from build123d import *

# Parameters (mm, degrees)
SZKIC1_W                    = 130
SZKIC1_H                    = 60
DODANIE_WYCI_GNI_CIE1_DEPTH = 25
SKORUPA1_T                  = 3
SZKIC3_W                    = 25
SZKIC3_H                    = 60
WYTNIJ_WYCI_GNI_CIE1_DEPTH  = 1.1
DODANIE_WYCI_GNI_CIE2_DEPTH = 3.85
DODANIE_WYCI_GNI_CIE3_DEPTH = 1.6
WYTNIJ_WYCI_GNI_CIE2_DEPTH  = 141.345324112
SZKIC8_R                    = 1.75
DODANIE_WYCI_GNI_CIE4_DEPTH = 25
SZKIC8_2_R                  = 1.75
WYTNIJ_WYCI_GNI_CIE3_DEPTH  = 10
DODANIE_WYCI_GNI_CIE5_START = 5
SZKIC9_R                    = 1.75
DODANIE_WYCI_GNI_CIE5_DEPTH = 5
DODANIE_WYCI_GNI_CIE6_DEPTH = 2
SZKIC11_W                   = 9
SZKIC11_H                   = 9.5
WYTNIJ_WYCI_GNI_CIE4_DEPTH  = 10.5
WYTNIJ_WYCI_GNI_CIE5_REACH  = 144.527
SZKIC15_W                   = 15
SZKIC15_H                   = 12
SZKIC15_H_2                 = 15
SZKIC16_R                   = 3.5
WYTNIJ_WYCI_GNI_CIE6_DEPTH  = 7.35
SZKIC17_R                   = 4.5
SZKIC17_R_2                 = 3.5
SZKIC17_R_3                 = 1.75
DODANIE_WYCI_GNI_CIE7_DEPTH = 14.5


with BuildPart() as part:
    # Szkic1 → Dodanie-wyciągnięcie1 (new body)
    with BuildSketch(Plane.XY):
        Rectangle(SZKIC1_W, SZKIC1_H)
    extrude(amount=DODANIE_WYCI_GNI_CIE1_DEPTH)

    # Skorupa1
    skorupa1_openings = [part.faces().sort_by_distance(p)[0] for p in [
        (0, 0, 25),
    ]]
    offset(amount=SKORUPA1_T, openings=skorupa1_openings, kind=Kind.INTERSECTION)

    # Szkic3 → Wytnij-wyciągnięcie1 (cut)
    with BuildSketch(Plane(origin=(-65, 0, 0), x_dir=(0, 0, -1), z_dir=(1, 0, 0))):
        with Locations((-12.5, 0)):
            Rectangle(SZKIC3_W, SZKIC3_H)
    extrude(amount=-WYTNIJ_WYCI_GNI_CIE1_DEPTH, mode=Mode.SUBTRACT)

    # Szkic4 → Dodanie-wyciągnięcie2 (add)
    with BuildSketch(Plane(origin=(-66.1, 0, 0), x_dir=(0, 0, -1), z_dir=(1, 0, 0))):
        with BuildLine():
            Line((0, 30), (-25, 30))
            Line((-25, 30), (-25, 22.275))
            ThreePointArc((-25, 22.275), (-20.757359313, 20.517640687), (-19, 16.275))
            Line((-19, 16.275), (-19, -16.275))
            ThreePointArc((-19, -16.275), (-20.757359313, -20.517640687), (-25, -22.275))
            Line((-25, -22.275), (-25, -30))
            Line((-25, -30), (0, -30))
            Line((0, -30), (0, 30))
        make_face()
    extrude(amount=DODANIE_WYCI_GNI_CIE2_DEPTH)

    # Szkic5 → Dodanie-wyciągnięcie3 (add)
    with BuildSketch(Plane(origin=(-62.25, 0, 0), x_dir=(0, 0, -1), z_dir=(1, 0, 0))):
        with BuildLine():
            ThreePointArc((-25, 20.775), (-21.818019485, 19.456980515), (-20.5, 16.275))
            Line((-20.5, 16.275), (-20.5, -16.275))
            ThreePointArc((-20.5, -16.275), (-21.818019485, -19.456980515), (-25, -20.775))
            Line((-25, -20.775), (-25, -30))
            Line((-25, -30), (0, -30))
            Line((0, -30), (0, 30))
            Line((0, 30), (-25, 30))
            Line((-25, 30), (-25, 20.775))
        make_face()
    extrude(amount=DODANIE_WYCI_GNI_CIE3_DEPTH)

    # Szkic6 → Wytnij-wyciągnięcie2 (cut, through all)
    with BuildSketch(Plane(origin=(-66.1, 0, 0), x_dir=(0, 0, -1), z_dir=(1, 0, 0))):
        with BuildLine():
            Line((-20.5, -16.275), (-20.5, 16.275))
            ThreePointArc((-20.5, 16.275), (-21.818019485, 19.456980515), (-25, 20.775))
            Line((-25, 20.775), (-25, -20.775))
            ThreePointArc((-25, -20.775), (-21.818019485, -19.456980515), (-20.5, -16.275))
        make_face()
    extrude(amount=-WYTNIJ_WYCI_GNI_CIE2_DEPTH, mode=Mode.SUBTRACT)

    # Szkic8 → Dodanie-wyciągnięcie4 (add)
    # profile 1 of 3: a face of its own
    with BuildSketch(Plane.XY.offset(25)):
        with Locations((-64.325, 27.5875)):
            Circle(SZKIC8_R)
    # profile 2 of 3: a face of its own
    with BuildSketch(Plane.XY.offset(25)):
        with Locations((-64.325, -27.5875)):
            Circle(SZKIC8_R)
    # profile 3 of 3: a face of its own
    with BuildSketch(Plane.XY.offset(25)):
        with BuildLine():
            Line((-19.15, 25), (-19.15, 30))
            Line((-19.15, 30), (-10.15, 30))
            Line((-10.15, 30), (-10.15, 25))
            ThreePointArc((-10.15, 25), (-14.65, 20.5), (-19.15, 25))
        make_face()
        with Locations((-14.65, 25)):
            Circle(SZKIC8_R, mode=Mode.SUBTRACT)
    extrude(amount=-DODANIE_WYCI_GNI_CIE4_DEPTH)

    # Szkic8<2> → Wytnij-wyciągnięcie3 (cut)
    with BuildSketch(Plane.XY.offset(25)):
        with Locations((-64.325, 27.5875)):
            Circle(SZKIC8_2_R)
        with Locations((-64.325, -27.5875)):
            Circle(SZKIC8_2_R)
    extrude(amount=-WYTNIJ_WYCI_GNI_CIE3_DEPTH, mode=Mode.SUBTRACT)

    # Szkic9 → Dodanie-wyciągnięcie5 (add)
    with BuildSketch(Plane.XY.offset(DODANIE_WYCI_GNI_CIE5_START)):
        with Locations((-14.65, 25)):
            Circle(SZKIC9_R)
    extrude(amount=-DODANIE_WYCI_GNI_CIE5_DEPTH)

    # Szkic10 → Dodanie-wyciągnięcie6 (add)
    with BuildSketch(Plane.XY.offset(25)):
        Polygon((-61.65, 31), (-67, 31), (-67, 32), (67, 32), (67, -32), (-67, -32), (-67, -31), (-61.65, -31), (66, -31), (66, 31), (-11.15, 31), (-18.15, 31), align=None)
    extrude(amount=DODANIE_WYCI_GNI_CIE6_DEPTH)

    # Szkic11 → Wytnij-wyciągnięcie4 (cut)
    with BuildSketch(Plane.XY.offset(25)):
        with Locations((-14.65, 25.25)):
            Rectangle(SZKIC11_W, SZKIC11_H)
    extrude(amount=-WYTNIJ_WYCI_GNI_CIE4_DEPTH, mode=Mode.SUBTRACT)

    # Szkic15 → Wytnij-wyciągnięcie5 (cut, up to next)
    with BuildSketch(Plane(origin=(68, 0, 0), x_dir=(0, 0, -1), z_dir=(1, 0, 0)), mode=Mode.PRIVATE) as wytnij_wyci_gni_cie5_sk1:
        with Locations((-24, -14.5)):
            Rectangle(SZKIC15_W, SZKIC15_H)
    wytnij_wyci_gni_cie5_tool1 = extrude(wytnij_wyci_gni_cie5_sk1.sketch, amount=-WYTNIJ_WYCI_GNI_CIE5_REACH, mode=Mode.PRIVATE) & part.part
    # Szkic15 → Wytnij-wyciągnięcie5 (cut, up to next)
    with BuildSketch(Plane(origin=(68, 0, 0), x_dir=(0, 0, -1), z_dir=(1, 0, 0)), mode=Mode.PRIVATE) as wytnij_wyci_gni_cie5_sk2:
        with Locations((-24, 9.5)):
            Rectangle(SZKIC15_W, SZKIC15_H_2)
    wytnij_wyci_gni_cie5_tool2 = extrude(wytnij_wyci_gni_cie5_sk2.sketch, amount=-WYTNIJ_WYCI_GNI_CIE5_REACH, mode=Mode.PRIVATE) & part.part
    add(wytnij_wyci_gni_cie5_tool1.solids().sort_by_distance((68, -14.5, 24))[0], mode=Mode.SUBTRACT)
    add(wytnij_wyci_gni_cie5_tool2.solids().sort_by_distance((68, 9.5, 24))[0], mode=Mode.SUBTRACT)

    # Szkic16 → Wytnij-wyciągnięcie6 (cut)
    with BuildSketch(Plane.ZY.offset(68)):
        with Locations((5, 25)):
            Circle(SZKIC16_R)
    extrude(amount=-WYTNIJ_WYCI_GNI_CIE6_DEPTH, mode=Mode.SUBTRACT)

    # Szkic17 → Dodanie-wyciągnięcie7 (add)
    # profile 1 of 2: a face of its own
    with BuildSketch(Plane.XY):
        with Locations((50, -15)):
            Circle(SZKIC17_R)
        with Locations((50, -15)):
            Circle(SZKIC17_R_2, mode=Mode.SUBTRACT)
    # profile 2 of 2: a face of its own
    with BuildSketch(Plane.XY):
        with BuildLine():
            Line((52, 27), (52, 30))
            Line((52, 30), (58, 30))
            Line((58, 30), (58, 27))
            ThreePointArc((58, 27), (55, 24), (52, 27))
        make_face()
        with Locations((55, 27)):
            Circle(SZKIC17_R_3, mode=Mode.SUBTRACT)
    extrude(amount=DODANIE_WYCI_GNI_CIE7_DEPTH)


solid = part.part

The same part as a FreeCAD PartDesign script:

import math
import FreeCAD as App
import Part
import Sketcher


def faces_at(feature, points):
    """Names of the faces that lie closest to the given points."""
    faces = feature.Shape.Faces
    near = lambda p: min(range(len(faces)), key=lambda i: faces[i].distToShape(Part.Vertex(*p))[0])
    return sorted({f"Face{near(p) + 1}" for p in points})

doc = App.newDocument("Part")
body = doc.addObject("PartDesign::Body", "Body")

# Sketch on XY plane
sketch1 = body.newObject("Sketcher::SketchObject", "Sketch")
sketch1.AttachmentSupport = (doc.getObject("XY_Plane"), [""])
sketch1.MapMode = "FlatFace"
sketch1.addGeometry(Part.LineSegment(App.Vector(-65, 30, 0), App.Vector(-65, -30, 0)), False)
sketch1.addGeometry(Part.LineSegment(App.Vector(-65, -30, 0), App.Vector(65, -30, 0)), False)
sketch1.addGeometry(Part.LineSegment(App.Vector(65, -30, 0), App.Vector(65, 30, 0)), False)
sketch1.addGeometry(Part.LineSegment(App.Vector(65, 30, 0), App.Vector(-65, 30, 0)), False)
sketch1.addConstraint(Sketcher.Constraint("Coincident", 0, 2, 1, 1))
sketch1.addConstraint(Sketcher.Constraint("Coincident", 1, 2, 2, 1))
sketch1.addConstraint(Sketcher.Constraint("Coincident", 2, 2, 3, 1))
sketch1.addConstraint(Sketcher.Constraint("Coincident", 3, 2, 0, 1))
sketch1.addConstraint(Sketcher.Constraint("Vertical", 0))
sketch1.addConstraint(Sketcher.Constraint("Horizontal", 1))
sketch1.addConstraint(Sketcher.Constraint("Vertical", 2))
sketch1.addConstraint(Sketcher.Constraint("Horizontal", 3))
sketch1.addConstraint(Sketcher.Constraint("Symmetric", 0, 2, 2, 2, -1, 1))
sketch1.addConstraint(Sketcher.Constraint("DistanceX", 1, 1, 1, 2, 130.0))
sketch1.addConstraint(Sketcher.Constraint("DistanceY", 0, 2, 0, 1, 60.0))
pad1 = body.newObject("PartDesign::Pad", "Pad")
pad1.Profile = sketch1
pad1.Length = 25
doc.recompute()

thickness = body.newObject("PartDesign::Thickness", "Thickness")
thickness.Base = (pad1, faces_at(pad1, [(0, 0, 25)]))
thickness.Value = 3
thickness.Reversed = False
thickness.Join = "Intersection"

# Sketch on YZ plane
sketch2 = body.newObject("Sketcher::SketchObject", "Sketch001")
sketch2.AttachmentSupport = (doc.getObject("YZ_Plane"), [""])
sketch2.MapMode = "FlatFace"
sketch2.AttachmentOffset = App.Placement(App.Vector(0, 0, -65), App.Rotation())
sketch2.addGeometry(Part.LineSegment(App.Vector(30, 25, 0), App.Vector(-30, 25, 0)), False)
sketch2.addGeometry(Part.LineSegment(App.Vector(-30, 25, 0), App.Vector(-30, 0, 0)), False)
sketch2.addGeometry(Part.LineSegment(App.Vector(-30, 0, 0), App.Vector(30, 0, 0)), False)
sketch2.addGeometry(Part.LineSegment(App.Vector(30, 0, 0), App.Vector(30, 25, 0)), False)
sketch2.addConstraint(Sketcher.Constraint("Coincident", 0, 2, 1, 1))
sketch2.addConstraint(Sketcher.Constraint("Coincident", 1, 2, 2, 1))
sketch2.addConstraint(Sketcher.Constraint("Coincident", 2, 2, 3, 1))
sketch2.addConstraint(Sketcher.Constraint("Coincident", 3, 2, 0, 1))
sketch2.addConstraint(Sketcher.Constraint("Horizontal", 0))
sketch2.addConstraint(Sketcher.Constraint("Vertical", 1))
sketch2.addConstraint(Sketcher.Constraint("Horizontal", 2))
sketch2.addConstraint(Sketcher.Constraint("Vertical", 3))
sketch2.addConstraint(Sketcher.Constraint("Symmetric", 1, 2, 2, 2, -1, 1))
sketch2.addConstraint(Sketcher.Constraint("DistanceX", 0, 2, 0, 1, 60.0))
sketch2.addConstraint(Sketcher.Constraint("DistanceY", 1, 2, 1, 1, 25.0))
pocket1 = body.newObject("PartDesign::Pocket", "Pocket")
pocket1.Profile = sketch2
pocket1.Length = 1.1

# Sketch on YZ plane
sketch3 = body.newObject("Sketcher::SketchObject", "Sketch002")
sketch3.AttachmentSupport = (doc.getObject("YZ_Plane"), [""])
sketch3.MapMode = "FlatFace"
sketch3.AttachmentOffset = App.Placement(App.Vector(0, 0, -66.1), App.Rotation())
sketch3.addGeometry(Part.LineSegment(App.Vector(30, 0, 0), App.Vector(30, 25, 0)), False)
sketch3.addGeometry(Part.LineSegment(App.Vector(30, 25, 0), App.Vector(22, 25, 0)), False)
sketch3.addGeometry(Part.ArcOfCircle(Part.Circle(App.Vector(16, 25, 0), App.Vector(0, 0, 1), 6), math.radians(-90), math.radians(0)), False)
sketch3.addGeometry(Part.LineSegment(App.Vector(16, 19, 0), App.Vector(-16, 19, 0)), False)
sketch3.addGeometry(Part.ArcOfCircle(Part.Circle(App.Vector(-16, 25, 0), App.Vector(0, 0, 1), 6), math.radians(180), math.radians(270)), False)
sketch3.addGeometry(Part.LineSegment(App.Vector(-22, 25, 0), App.Vector(-30, 25, 0)), False)
sketch3.addGeometry(Part.LineSegment(App.Vector(-30, 25, 0), App.Vector(-30, 0, 0)), False)
sketch3.addGeometry(Part.LineSegment(App.Vector(-30, 0, 0), App.Vector(30, 0, 0)), False)
sketch3.addConstraint(Sketcher.Constraint("Coincident", 0, 2, 1, 1))
sketch3.addConstraint(Sketcher.Constraint("Coincident", 1, 2, 2, 2))
sketch3.addConstraint(Sketcher.Constraint("Tangent", 2, 1, 3, 1))
sketch3.addConstraint(Sketcher.Constraint("Tangent", 3, 2, 4, 2))
sketch3.addConstraint(Sketcher.Constraint("Coincident", 4, 1, 5, 1))
sketch3.addConstraint(Sketcher.Constraint("Coincident", 5, 2, 6, 1))
sketch3.addConstraint(Sketcher.Constraint("Coincident", 6, 2, 7, 1))
sketch3.addConstraint(Sketcher.Constraint("Coincident", 7, 2, 0, 1))
sketch3.addConstraint(Sketcher.Constraint("Vertical", 0))
sketch3.addConstraint(Sketcher.Constraint("Horizontal", 1))
sketch3.addConstraint(Sketcher.Constraint("Horizontal", 3))
sketch3.addConstraint(Sketcher.Constraint("Horizontal", 5))
sketch3.addConstraint(Sketcher.Constraint("Vertical", 6))
sketch3.addConstraint(Sketcher.Constraint("Horizontal", 7))
sketch3.addConstraint(Sketcher.Constraint("Equal", 2, 4))
sketch3.addConstraint(Sketcher.Constraint("Symmetric", 6, 2, 7, 2, -1, 1))
sketch3.addConstraint(Sketcher.Constraint("Symmetric", 1, 2, 4, 1, -2))
sketch3.addConstraint(Sketcher.Constraint("Horizontal", 4, 3, 0, 2))
sketch3.addConstraint(Sketcher.Constraint("Radius", 2, 6.0))
sketch3.addConstraint(Sketcher.Constraint("DistanceX", 7, 1, 7, 2, 60.0))
sketch3.addConstraint(Sketcher.Constraint("DistanceY", 0, 1, 0, 2, 25.0))
sketch3.addConstraint(Sketcher.Constraint("DistanceX", 3, 2, 3, 1, 32.55))
pad2 = body.newObject("PartDesign::Pad", "Pad001")
pad2.Profile = sketch3
pad2.Length = 3.85

# Sketch on YZ plane
sketch4 = body.newObject("Sketcher::SketchObject", "Sketch003")
sketch4.AttachmentSupport = (doc.getObject("YZ_Plane"), [""])
sketch4.MapMode = "FlatFace"
sketch4.AttachmentOffset = App.Placement(App.Vector(0, 0, -62.25), App.Rotation())
sketch4.addGeometry(Part.ArcOfCircle(Part.Circle(App.Vector(16.3, 25, 0), App.Vector(0, 0, 1), 4.5), math.radians(-90), math.radians(0)), False)
sketch4.addGeometry(Part.LineSegment(App.Vector(16.3, 20.5, 0), App.Vector(-16.3, 20.5, 0)), False)
sketch4.addGeometry(Part.ArcOfCircle(Part.Circle(App.Vector(-16.3, 25, 0), App.Vector(0, 0, 1), 4.5), math.radians(-180), math.radians(-90)), False)
sketch4.addGeometry(Part.LineSegment(App.Vector(-20.8, 25, 0), App.Vector(-30, 25, 0)), False)
sketch4.addGeometry(Part.LineSegment(App.Vector(-30, 25, 0), App.Vector(-30, 0, 0)), False)
sketch4.addGeometry(Part.LineSegment(App.Vector(-30, 0, 0), App.Vector(30, 0, 0)), False)
sketch4.addGeometry(Part.LineSegment(App.Vector(30, 0, 0), App.Vector(30, 25, 0)), False)
sketch4.addGeometry(Part.LineSegment(App.Vector(30, 25, 0), App.Vector(20.8, 25, 0)), False)
sketch4.addConstraint(Sketcher.Constraint("Tangent", 0, 1, 1, 1))
sketch4.addConstraint(Sketcher.Constraint("Tangent", 1, 2, 2, 2))
sketch4.addConstraint(Sketcher.Constraint("Coincident", 2, 1, 3, 1))
sketch4.addConstraint(Sketcher.Constraint("Coincident", 3, 2, 4, 1))
sketch4.addConstraint(Sketcher.Constraint("Coincident", 4, 2, 5, 1))
sketch4.addConstraint(Sketcher.Constraint("Coincident", 5, 2, 6, 1))
sketch4.addConstraint(Sketcher.Constraint("Coincident", 6, 2, 7, 1))
sketch4.addConstraint(Sketcher.Constraint("Coincident", 7, 2, 0, 2))
sketch4.addConstraint(Sketcher.Constraint("Horizontal", 1))
sketch4.addConstraint(Sketcher.Constraint("Horizontal", 3))
sketch4.addConstraint(Sketcher.Constraint("Vertical", 4))
sketch4.addConstraint(Sketcher.Constraint("Horizontal", 5))
sketch4.addConstraint(Sketcher.Constraint("Vertical", 6))
sketch4.addConstraint(Sketcher.Constraint("Horizontal", 7))
sketch4.addConstraint(Sketcher.Constraint("Equal", 0, 2))
sketch4.addConstraint(Sketcher.Constraint("Symmetric", 4, 2, 5, 2, -1, 1))
sketch4.addConstraint(Sketcher.Constraint("Symmetric", 2, 1, 7, 2, -2))
sketch4.addConstraint(Sketcher.Constraint("Horizontal", 0, 3, 2, 1))
sketch4.addConstraint(Sketcher.Constraint("Radius", 0, 4.5))
sketch4.addConstraint(Sketcher.Constraint("DistanceX", 5, 1, 5, 2, 60.0))
sketch4.addConstraint(Sketcher.Constraint("DistanceY", 4, 2, 4, 1, 25.0))
sketch4.addConstraint(Sketcher.Constraint("DistanceX", 1, 2, 1, 1, 32.55))
pad3 = body.newObject("PartDesign::Pad", "Pad002")
pad3.Profile = sketch4
pad3.Length = 1.6

# Sketch on YZ plane
sketch5 = body.newObject("Sketcher::SketchObject", "Sketch004")
sketch5.AttachmentSupport = (doc.getObject("YZ_Plane"), [""])
sketch5.MapMode = "FlatFace"
sketch5.AttachmentOffset = App.Placement(App.Vector(0, 0, -66.1), App.Rotation())
sketch5.addGeometry(Part.LineSegment(App.Vector(-16.3, 20.5, 0), App.Vector(16.3, 20.5, 0)), False)
sketch5.addGeometry(Part.ArcOfCircle(Part.Circle(App.Vector(16.3, 25, 0), App.Vector(0, 0, 1), 4.5), math.radians(-90), math.radians(0)), False)
sketch5.addGeometry(Part.LineSegment(App.Vector(20.8, 25, 0), App.Vector(-20.8, 25, 0)), False)
sketch5.addGeometry(Part.ArcOfCircle(Part.Circle(App.Vector(-16.3, 25, 0), App.Vector(0, 0, 1), 4.5), math.radians(-180), math.radians(-90)), False)
sketch5.addConstraint(Sketcher.Constraint("Tangent", 0, 2, 1, 1))
sketch5.addConstraint(Sketcher.Constraint("Coincident", 1, 2, 2, 1))
sketch5.addConstraint(Sketcher.Constraint("Coincident", 2, 2, 3, 1))
sketch5.addConstraint(Sketcher.Constraint("Tangent", 3, 2, 0, 1))
sketch5.addConstraint(Sketcher.Constraint("Horizontal", 0))
sketch5.addConstraint(Sketcher.Constraint("Horizontal", 2))
sketch5.addConstraint(Sketcher.Constraint("Equal", 1, 3))
sketch5.addConstraint(Sketcher.Constraint("Horizontal", 3, 3, 1, 2))
sketch5.addConstraint(Sketcher.Constraint("Radius", 1, 4.5))
sketch5.addConstraint(Sketcher.Constraint("DistanceY", -1, 1, 1, 3, 25.0))
sketch5.addConstraint(Sketcher.Constraint("DistanceX", 0, 1, 0, 2, 32.55))
sketch5.addConstraint(Sketcher.Constraint("DistanceX", -1, 1, 1, 3, 16.275))
pocket2 = body.newObject("PartDesign::Pocket", "Pocket001")
pocket2.Profile = sketch5
pocket2.Type = "ThroughAll"

# Sketch on XY plane
sketch6 = body.newObject("Sketcher::SketchObject", "Sketch005")
sketch6.AttachmentSupport = (doc.getObject("XY_Plane"), [""])
sketch6.MapMode = "FlatFace"
sketch6.AttachmentOffset = App.Placement(App.Vector(0, 0, 25), App.Rotation())
sketch6.addGeometry(Part.Circle(App.Vector(-64.3, 27.6, 0), App.Vector(0, 0, 1), 1.8), False)
sketch6.addGeometry(Part.Circle(App.Vector(-64.3, -27.6, 0), App.Vector(0, 0, 1), 1.8), False)
sketch6.addGeometry(Part.LineSegment(App.Vector(-19.1, 30, 0), App.Vector(-19.1, 25, 0)), False)
sketch6.addGeometry(Part.ArcOfCircle(Part.Circle(App.Vector(-14.7, 25, 0), App.Vector(0, 0, 1), 4.5), math.radians(180), math.radians(360)), False)
sketch6.addGeometry(Part.LineSegment(App.Vector(-10.2, 25, 0), App.Vector(-10.2, 30, 0)), False)
sketch6.addGeometry(Part.LineSegment(App.Vector(-10.2, 30, 0), App.Vector(-19.1, 30, 0)), False)
sketch6.addGeometry(Part.Circle(App.Vector(-14.7, 25, 0), App.Vector(0, 0, 1), 1.8), False)
sketch6.addConstraint(Sketcher.Constraint("Tangent", 2, 2, 3, 1))
sketch6.addConstraint(Sketcher.Constraint("Tangent", 3, 2, 4, 1))
sketch6.addConstraint(Sketcher.Constraint("Coincident", 4, 2, 5, 1))
sketch6.addConstraint(Sketcher.Constraint("Coincident", 5, 2, 2, 1))
sketch6.addConstraint(Sketcher.Constraint("Vertical", 2))
sketch6.addConstraint(Sketcher.Constraint("Vertical", 4))
sketch6.addConstraint(Sketcher.Constraint("Horizontal", 5))
sketch6.addConstraint(Sketcher.Constraint("Coincident", 6, 3, 3, 3))
sketch6.addConstraint(Sketcher.Constraint("Equal", 0, 1))
sketch6.addConstraint(Sketcher.Constraint("Equal", 1, 6))
sketch6.addConstraint(Sketcher.Constraint("Symmetric", 0, 3, 1, 3, -1))
sketch6.addConstraint(Sketcher.Constraint("Diameter", 0, 3.5))
sketch6.addConstraint(Sketcher.Constraint("Radius", 3, 4.5))
sketch6.addConstraint(Sketcher.Constraint("DistanceY", 2, 2, 2, 1, 5.0))
sketch6.addConstraint(Sketcher.Constraint("DistanceY", -1, 1, 3, 3, 25.0))
sketch6.addConstraint(Sketcher.Constraint("DistanceX", 3, 3, -1, 1, 14.65))
sketch6.addConstraint(Sketcher.Constraint("DistanceX", 0, 3, -1, 1, 64.325))
sketch6.addConstraint(Sketcher.Constraint("DistanceY", 1, 3, 0, 3, 55.175))
pad4 = body.newObject("PartDesign::Pad", "Pad003")
pad4.Profile = sketch6
pad4.Length = 25
pad4.Reversed = True

# Sketch on XY plane
sketch7 = body.newObject("Sketcher::SketchObject", "Sketch006")
sketch7.AttachmentSupport = (doc.getObject("XY_Plane"), [""])
sketch7.MapMode = "FlatFace"
sketch7.AttachmentOffset = App.Placement(App.Vector(0, 0, 25), App.Rotation())
sketch7.addGeometry(Part.Circle(App.Vector(-64.3, 27.6, 0), App.Vector(0, 0, 1), 1.8), False)
sketch7.addGeometry(Part.Circle(App.Vector(-64.3, -27.6, 0), App.Vector(0, 0, 1), 1.8), False)
sketch7.addConstraint(Sketcher.Constraint("Equal", 0, 1))
sketch7.addConstraint(Sketcher.Constraint("Symmetric", 0, 3, 1, 3, -1))
sketch7.addConstraint(Sketcher.Constraint("Diameter", 0, 3.5))
sketch7.addConstraint(Sketcher.Constraint("DistanceX", 0, 3, -1, 1, 64.325))
sketch7.addConstraint(Sketcher.Constraint("DistanceY", 1, 3, 0, 3, 55.175))
pocket3 = body.newObject("PartDesign::Pocket", "Pocket002")
pocket3.Profile = sketch7
pocket3.Length = 10

# Sketch on XY plane
sketch8 = body.newObject("Sketcher::SketchObject", "Sketch007")
sketch8.AttachmentSupport = (doc.getObject("XY_Plane"), [""])
sketch8.MapMode = "FlatFace"
sketch8.AttachmentOffset = App.Placement(App.Vector(0, 0, 5), App.Rotation())
sketch8.addGeometry(Part.Circle(App.Vector(-14.7, 25, 0), App.Vector(0, 0, 1), 1.8), False)
sketch8.addConstraint(Sketcher.Constraint("Diameter", 0, 3.5))
sketch8.addConstraint(Sketcher.Constraint("DistanceY", -1, 1, 0, 3, 25.0))
sketch8.addConstraint(Sketcher.Constraint("DistanceX", 0, 3, -1, 1, 14.65))
pad5 = body.newObject("PartDesign::Pad", "Pad004")
pad5.Profile = sketch8
pad5.Length = 5
pad5.Reversed = True

# Sketch on XY plane
sketch9 = body.newObject("Sketcher::SketchObject", "Sketch008")
sketch9.AttachmentSupport = (doc.getObject("XY_Plane"), [""])
sketch9.MapMode = "FlatFace"
sketch9.AttachmentOffset = App.Placement(App.Vector(0, 0, 25), App.Rotation())
sketch9.addGeometry(Part.LineSegment(App.Vector(-67, 31, 0), App.Vector(66, 31, 0)), False)
sketch9.addGeometry(Part.LineSegment(App.Vector(66, 31, 0), App.Vector(66, -31, 0)), False)
sketch9.addGeometry(Part.LineSegment(App.Vector(66, -31, 0), App.Vector(-67, -31, 0)), False)
sketch9.addGeometry(Part.LineSegment(App.Vector(-67, -31, 0), App.Vector(-67, -32, 0)), False)
sketch9.addGeometry(Part.LineSegment(App.Vector(-67, -32, 0), App.Vector(67, -32, 0)), False)
sketch9.addGeometry(Part.LineSegment(App.Vector(67, -32, 0), App.Vector(67, 32, 0)), False)
sketch9.addGeometry(Part.LineSegment(App.Vector(67, 32, 0), App.Vector(-67, 32, 0)), False)
sketch9.addGeometry(Part.LineSegment(App.Vector(-67, 32, 0), App.Vector(-67, 31, 0)), False)
sketch9.addConstraint(Sketcher.Constraint("Coincident", 0, 2, 1, 1))
sketch9.addConstraint(Sketcher.Constraint("Coincident", 1, 2, 2, 1))
sketch9.addConstraint(Sketcher.Constraint("Coincident", 2, 2, 3, 1))
sketch9.addConstraint(Sketcher.Constraint("Coincident", 3, 2, 4, 1))
sketch9.addConstraint(Sketcher.Constraint("Coincident", 4, 2, 5, 1))
sketch9.addConstraint(Sketcher.Constraint("Coincident", 5, 2, 6, 1))
sketch9.addConstraint(Sketcher.Constraint("Coincident", 6, 2, 7, 1))
sketch9.addConstraint(Sketcher.Constraint("Coincident", 7, 2, 0, 1))
sketch9.addConstraint(Sketcher.Constraint("Horizontal", 0))
sketch9.addConstraint(Sketcher.Constraint("Vertical", 1))
sketch9.addConstraint(Sketcher.Constraint("Horizontal", 2))
sketch9.addConstraint(Sketcher.Constraint("Vertical", 3))
sketch9.addConstraint(Sketcher.Constraint("Horizontal", 4))
sketch9.addConstraint(Sketcher.Constraint("Vertical", 5))
sketch9.addConstraint(Sketcher.Constraint("Horizontal", 6))
sketch9.addConstraint(Sketcher.Constraint("Vertical", 7))
sketch9.addConstraint(Sketcher.Constraint("Symmetric", 3, 2, 5, 2, -1, 1))
sketch9.addConstraint(Sketcher.Constraint("Symmetric", 2, 2, 7, 2, -1))
sketch9.addConstraint(Sketcher.Constraint("DistanceX", 0, 1, 0, 2, 133.0))
sketch9.addConstraint(Sketcher.Constraint("DistanceX", 4, 1, 4, 2, 134.0))
sketch9.addConstraint(Sketcher.Constraint("DistanceY", 1, 2, 1, 1, 62.0))
sketch9.addConstraint(Sketcher.Constraint("DistanceY", 3, 2, 3, 1, 1.0))
pad6 = body.newObject("PartDesign::Pad", "Pad005")
pad6.Profile = sketch9
pad6.Length = 2

# Sketch on XY plane
sketch10 = body.newObject("Sketcher::SketchObject", "Sketch009")
sketch10.AttachmentSupport = (doc.getObject("XY_Plane"), [""])
sketch10.MapMode = "FlatFace"
sketch10.AttachmentOffset = App.Placement(App.Vector(0, 0, 25), App.Rotation())
sketch10.addGeometry(Part.LineSegment(App.Vector(-19, 30, 0), App.Vector(-19, 20, 0)), False)
sketch10.addGeometry(Part.LineSegment(App.Vector(-19, 20, 0), App.Vector(-10, 20, 0)), False)
sketch10.addGeometry(Part.LineSegment(App.Vector(-10, 20, 0), App.Vector(-10, 30, 0)), False)
sketch10.addGeometry(Part.LineSegment(App.Vector(-10, 30, 0), App.Vector(-19, 30, 0)), False)
sketch10.addConstraint(Sketcher.Constraint("Coincident", 0, 2, 1, 1))
sketch10.addConstraint(Sketcher.Constraint("Coincident", 1, 2, 2, 1))
sketch10.addConstraint(Sketcher.Constraint("Coincident", 2, 2, 3, 1))
sketch10.addConstraint(Sketcher.Constraint("Coincident", 3, 2, 0, 1))
sketch10.addConstraint(Sketcher.Constraint("Vertical", 0))
sketch10.addConstraint(Sketcher.Constraint("Horizontal", 1))
sketch10.addConstraint(Sketcher.Constraint("Vertical", 2))
sketch10.addConstraint(Sketcher.Constraint("Horizontal", 3))
sketch10.addConstraint(Sketcher.Constraint("DistanceX", 1, 1, 1, 2, 9.0))
sketch10.addConstraint(Sketcher.Constraint("DistanceY", 0, 2, 0, 1, 9.5))
sketch10.addConstraint(Sketcher.Constraint("DistanceY", -1, 1, 2, 2, 30.0))
sketch10.addConstraint(Sketcher.Constraint("DistanceX", 0, 2, -1, 1, 19.15))
pocket4 = body.newObject("PartDesign::Pocket", "Pocket003")
pocket4.Profile = sketch10
pocket4.Length = 10.5

# Sketch on YZ plane
sketch11 = body.newObject("Sketcher::SketchObject", "Sketch010")
sketch11.AttachmentSupport = (doc.getObject("YZ_Plane"), [""])
sketch11.MapMode = "FlatFace"
sketch11.AttachmentOffset = App.Placement(App.Vector(0, 0, 68), App.Rotation())
sketch11.addGeometry(Part.LineSegment(App.Vector(-8, 32, 0), App.Vector(-20, 32, 0)), False)
sketch11.addGeometry(Part.LineSegment(App.Vector(-20, 32, 0), App.Vector(-20, 16, 0)), False)
sketch11.addGeometry(Part.LineSegment(App.Vector(-20, 16, 0), App.Vector(-8, 16, 0)), False)
sketch11.addGeometry(Part.LineSegment(App.Vector(-8, 16, 0), App.Vector(-8, 32, 0)), False)
sketch11.addConstraint(Sketcher.Constraint("Coincident", 0, 2, 1, 1))
sketch11.addConstraint(Sketcher.Constraint("Coincident", 1, 2, 2, 1))
sketch11.addConstraint(Sketcher.Constraint("Coincident", 2, 2, 3, 1))
sketch11.addConstraint(Sketcher.Constraint("Coincident", 3, 2, 0, 1))
sketch11.addConstraint(Sketcher.Constraint("Horizontal", 0))
sketch11.addConstraint(Sketcher.Constraint("Vertical", 1))
sketch11.addConstraint(Sketcher.Constraint("Horizontal", 2))
sketch11.addConstraint(Sketcher.Constraint("Vertical", 3))
sketch11.addConstraint(Sketcher.Constraint("DistanceX", 0, 2, 0, 1, 12.0))
sketch11.addConstraint(Sketcher.Constraint("DistanceY", 1, 2, 1, 1, 15.0))
sketch11.addConstraint(Sketcher.Constraint("DistanceX", 0, 2, -1, 1, 20.5))
sketch11.addConstraint(Sketcher.Constraint("DistanceY", -1, 1, 0, 2, 31.5))
pocket5 = body.newObject("PartDesign::Pocket", "Pocket004")
pocket5.Profile = sketch11
pocket5.Type = "UpToFirst"

# Sketch on YZ plane
sketch12 = body.newObject("Sketcher::SketchObject", "Sketch011")
sketch12.AttachmentSupport = (doc.getObject("YZ_Plane"), [""])
sketch12.MapMode = "FlatFace"
sketch12.AttachmentOffset = App.Placement(App.Vector(0, 0, 68), App.Rotation())
sketch12.addGeometry(Part.LineSegment(App.Vector(17, 32, 0), App.Vector(2, 32, 0)), False)
sketch12.addGeometry(Part.LineSegment(App.Vector(2, 32, 0), App.Vector(2, 16, 0)), False)
sketch12.addGeometry(Part.LineSegment(App.Vector(2, 16, 0), App.Vector(17, 16, 0)), False)
sketch12.addGeometry(Part.LineSegment(App.Vector(17, 16, 0), App.Vector(17, 32, 0)), False)
sketch12.addConstraint(Sketcher.Constraint("Coincident", 0, 2, 1, 1))
sketch12.addConstraint(Sketcher.Constraint("Coincident", 1, 2, 2, 1))
sketch12.addConstraint(Sketcher.Constraint("Coincident", 2, 2, 3, 1))
sketch12.addConstraint(Sketcher.Constraint("Coincident", 3, 2, 0, 1))
sketch12.addConstraint(Sketcher.Constraint("Horizontal", 0))
sketch12.addConstraint(Sketcher.Constraint("Vertical", 1))
sketch12.addConstraint(Sketcher.Constraint("Horizontal", 2))
sketch12.addConstraint(Sketcher.Constraint("Vertical", 3))
sketch12.addConstraint(Sketcher.Constraint("Equal", 2, 1))
sketch12.addConstraint(Sketcher.Constraint("DistanceX", 0, 2, 0, 1, 15.0))
sketch12.addConstraint(Sketcher.Constraint("DistanceX", -1, 1, 0, 2, 2.0))
sketch12.addConstraint(Sketcher.Constraint("DistanceY", -1, 1, 0, 2, 31.5))
pocket6 = body.newObject("PartDesign::Pocket", "Pocket005")
pocket6.Profile = sketch12
pocket6.Type = "UpToFirst"

# Sketch on YZ plane
sketch13 = body.newObject("Sketcher::SketchObject", "Sketch012")
sketch13.AttachmentSupport = (doc.getObject("YZ_Plane"), [""])
sketch13.MapMode = "FlatFace"
sketch13.AttachmentOffset = App.Placement(App.Vector(0, 0, -68), App.Rotation())
sketch13.addGeometry(Part.Circle(App.Vector(25, 5, 0), App.Vector(0, 0, 1), 3.5), False)
sketch13.addConstraint(Sketcher.Constraint("Diameter", 0, 7.0))
sketch13.addConstraint(Sketcher.Constraint("DistanceX", -1, 1, 0, 3, 25.0))
sketch13.addConstraint(Sketcher.Constraint("DistanceY", -1, 1, 0, 3, 5.0))
pocket7 = body.newObject("PartDesign::Pocket", "Pocket006")
pocket7.Profile = sketch13
pocket7.Length = 7.35
pocket7.Reversed = True

# Sketch on XY plane
sketch14 = body.newObject("Sketcher::SketchObject", "Sketch013")
sketch14.AttachmentSupport = (doc.getObject("XY_Plane"), [""])
sketch14.MapMode = "FlatFace"
sketch14.addGeometry(Part.Circle(App.Vector(50, -15, 0), App.Vector(0, 0, 1), 4.5), False)
sketch14.addGeometry(Part.Circle(App.Vector(50, -15, 0), App.Vector(0, 0, 1), 3.5), False)
sketch14.addGeometry(Part.LineSegment(App.Vector(52, 30, 0), App.Vector(52, 27, 0)), False)
sketch14.addGeometry(Part.ArcOfCircle(Part.Circle(App.Vector(55, 27, 0), App.Vector(0, 0, 1), 3), math.radians(180), math.radians(360)), False)
sketch14.addGeometry(Part.LineSegment(App.Vector(58, 27, 0), App.Vector(58, 30, 0)), False)
sketch14.addGeometry(Part.LineSegment(App.Vector(58, 30, 0), App.Vector(52, 30, 0)), False)
sketch14.addGeometry(Part.Circle(App.Vector(55, 27, 0), App.Vector(0, 0, 1), 1.8), False)
sketch14.addConstraint(Sketcher.Constraint("Tangent", 2, 2, 3, 1))
sketch14.addConstraint(Sketcher.Constraint("Tangent", 3, 2, 4, 1))
sketch14.addConstraint(Sketcher.Constraint("Coincident", 4, 2, 5, 1))
sketch14.addConstraint(Sketcher.Constraint("Coincident", 5, 2, 2, 1))
sketch14.addConstraint(Sketcher.Constraint("Vertical", 2))
sketch14.addConstraint(Sketcher.Constraint("Vertical", 4))
sketch14.addConstraint(Sketcher.Constraint("Horizontal", 5))
sketch14.addConstraint(Sketcher.Constraint("Coincident", 1, 3, 0, 3))
sketch14.addConstraint(Sketcher.Constraint("Coincident", 6, 3, 3, 3))
sketch14.addConstraint(Sketcher.Constraint("Diameter", 0, 9.0))
sketch14.addConstraint(Sketcher.Constraint("Diameter", 1, 7.0))
sketch14.addConstraint(Sketcher.Constraint("Radius", 3, 3.0))
sketch14.addConstraint(Sketcher.Constraint("Diameter", 6, 3.5))
sketch14.addConstraint(Sketcher.Constraint("DistanceY", 2, 2, 2, 1, 3.0))
sketch14.addConstraint(Sketcher.Constraint("DistanceX", -1, 1, 0, 3, 50.0))
sketch14.addConstraint(Sketcher.Constraint("DistanceY", 0, 3, -1, 1, 15.0))
sketch14.addConstraint(Sketcher.Constraint("DistanceX", -1, 1, 3, 3, 55.0))
sketch14.addConstraint(Sketcher.Constraint("DistanceY", -1, 1, 3, 3, 27.0))
pad7 = body.newObject("PartDesign::Pad", "Pad006")
pad7.Profile = sketch14
pad7.Length = 14.5

doc.recompute()
